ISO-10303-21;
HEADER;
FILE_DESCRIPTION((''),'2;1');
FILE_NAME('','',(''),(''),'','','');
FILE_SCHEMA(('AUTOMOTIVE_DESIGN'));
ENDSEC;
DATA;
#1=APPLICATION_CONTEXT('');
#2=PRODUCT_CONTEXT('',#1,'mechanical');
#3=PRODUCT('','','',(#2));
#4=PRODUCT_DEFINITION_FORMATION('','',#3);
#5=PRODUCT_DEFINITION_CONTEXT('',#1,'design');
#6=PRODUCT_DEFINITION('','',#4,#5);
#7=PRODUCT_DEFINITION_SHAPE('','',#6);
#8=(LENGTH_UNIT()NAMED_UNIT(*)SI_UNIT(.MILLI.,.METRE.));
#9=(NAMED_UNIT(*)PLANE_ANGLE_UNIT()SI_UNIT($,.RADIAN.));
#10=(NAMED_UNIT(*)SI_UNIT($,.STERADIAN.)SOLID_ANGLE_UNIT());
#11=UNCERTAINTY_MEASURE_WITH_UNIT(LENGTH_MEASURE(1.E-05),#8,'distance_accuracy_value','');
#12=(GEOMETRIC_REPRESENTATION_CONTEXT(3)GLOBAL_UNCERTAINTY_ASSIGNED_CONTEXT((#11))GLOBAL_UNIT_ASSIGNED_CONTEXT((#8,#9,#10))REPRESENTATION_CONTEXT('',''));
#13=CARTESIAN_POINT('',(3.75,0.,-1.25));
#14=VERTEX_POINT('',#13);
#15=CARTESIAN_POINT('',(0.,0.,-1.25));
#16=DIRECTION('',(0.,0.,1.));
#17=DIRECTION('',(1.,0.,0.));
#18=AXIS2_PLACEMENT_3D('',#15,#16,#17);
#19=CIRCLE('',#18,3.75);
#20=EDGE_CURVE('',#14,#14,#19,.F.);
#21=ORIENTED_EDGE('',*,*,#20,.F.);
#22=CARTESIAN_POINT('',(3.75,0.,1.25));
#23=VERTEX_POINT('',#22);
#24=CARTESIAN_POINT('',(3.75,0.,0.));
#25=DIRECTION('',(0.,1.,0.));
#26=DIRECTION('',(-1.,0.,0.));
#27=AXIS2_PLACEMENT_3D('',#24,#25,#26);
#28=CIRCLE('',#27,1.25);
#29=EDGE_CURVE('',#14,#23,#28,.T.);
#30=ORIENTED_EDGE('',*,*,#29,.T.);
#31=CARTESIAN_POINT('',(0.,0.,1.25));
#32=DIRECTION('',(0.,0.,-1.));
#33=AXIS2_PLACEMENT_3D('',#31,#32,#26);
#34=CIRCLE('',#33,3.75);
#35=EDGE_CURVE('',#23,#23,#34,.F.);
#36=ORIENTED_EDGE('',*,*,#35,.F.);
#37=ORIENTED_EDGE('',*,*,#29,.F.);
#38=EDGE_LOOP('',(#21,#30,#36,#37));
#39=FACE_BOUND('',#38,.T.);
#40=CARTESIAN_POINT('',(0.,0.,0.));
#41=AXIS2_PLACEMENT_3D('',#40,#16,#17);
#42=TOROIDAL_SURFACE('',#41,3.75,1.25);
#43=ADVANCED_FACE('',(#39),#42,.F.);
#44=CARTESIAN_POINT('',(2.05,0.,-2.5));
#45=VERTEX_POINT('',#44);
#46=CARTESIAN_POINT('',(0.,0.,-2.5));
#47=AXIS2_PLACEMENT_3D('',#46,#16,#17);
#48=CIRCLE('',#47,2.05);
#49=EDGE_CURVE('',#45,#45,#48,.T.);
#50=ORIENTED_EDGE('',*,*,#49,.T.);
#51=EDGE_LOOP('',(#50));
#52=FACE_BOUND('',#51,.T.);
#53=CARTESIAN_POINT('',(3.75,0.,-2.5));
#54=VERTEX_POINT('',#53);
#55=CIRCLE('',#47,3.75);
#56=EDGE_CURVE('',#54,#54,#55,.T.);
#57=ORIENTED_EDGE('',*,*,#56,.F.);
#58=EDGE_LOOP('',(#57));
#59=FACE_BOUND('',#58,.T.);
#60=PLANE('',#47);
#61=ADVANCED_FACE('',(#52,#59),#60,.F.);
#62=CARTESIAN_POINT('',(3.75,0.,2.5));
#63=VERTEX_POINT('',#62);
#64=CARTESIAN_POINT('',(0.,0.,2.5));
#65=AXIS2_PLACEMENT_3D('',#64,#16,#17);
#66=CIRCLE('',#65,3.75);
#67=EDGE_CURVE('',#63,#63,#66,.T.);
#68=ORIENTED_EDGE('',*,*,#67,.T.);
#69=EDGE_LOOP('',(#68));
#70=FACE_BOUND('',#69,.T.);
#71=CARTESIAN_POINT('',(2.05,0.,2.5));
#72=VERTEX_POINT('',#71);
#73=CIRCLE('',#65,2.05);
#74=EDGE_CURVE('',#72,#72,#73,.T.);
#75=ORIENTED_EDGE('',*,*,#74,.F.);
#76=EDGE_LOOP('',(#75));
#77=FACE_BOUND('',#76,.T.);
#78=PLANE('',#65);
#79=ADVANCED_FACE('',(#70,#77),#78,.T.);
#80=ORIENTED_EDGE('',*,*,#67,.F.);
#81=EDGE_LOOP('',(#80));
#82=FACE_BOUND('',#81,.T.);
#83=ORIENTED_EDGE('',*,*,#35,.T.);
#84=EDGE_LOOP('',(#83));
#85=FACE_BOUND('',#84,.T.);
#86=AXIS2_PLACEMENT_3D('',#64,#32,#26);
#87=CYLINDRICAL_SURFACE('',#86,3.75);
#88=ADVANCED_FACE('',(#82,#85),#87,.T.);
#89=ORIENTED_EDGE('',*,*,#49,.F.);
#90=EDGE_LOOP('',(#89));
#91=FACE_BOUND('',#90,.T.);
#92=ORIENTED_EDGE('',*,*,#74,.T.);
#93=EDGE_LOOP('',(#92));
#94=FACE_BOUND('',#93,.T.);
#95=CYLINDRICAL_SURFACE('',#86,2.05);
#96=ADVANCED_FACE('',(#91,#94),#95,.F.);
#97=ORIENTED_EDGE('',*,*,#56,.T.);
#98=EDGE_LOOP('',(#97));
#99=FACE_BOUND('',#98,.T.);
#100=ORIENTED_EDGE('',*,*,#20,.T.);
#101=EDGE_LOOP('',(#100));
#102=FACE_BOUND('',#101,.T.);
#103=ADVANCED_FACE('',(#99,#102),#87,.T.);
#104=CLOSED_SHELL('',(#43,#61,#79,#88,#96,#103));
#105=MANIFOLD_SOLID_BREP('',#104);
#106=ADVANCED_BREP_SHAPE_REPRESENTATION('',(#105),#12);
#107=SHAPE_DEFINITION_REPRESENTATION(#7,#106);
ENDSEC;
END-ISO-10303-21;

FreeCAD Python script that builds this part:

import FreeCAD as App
import Part
import Sketcher

V = App.Vector

doc = App.newDocument("Part")
body = doc.addObject("PartDesign::Body", "Body")

sketch1 = body.newObject("Sketcher::SketchObject", "Sketch")
sketch1.AttachmentSupport = (doc.getObject("XY_Plane"), [""])
sketch1.MapMode = "FlatFace"
sketch1.addGeometry(Part.Circle(V(0, 0, 0), V(0, 0, 1), 3.8), False)
sketch1.addGeometry(Part.Circle(V(0, 0, 0), V(0, 0, 1), 2), False)
sketch1.addConstraint(Sketcher.Constraint("Coincident", 0, 3, -1, 1))
sketch1.addConstraint(Sketcher.Constraint("Coincident", 1, 3, -1, 1))
sketch1.addConstraint(Sketcher.Constraint("Diameter", 0, 7.5))
sketch1.addConstraint(Sketcher.Constraint("Diameter", 1, 4.1))
pad1 = body.newObject("PartDesign::Pad", "Pad")
pad1.Profile = sketch1
pad1.Length = 5
pad1.Midplane = True

sketch2 = body.newObject("Sketcher::SketchObject", "Sketch001")
sketch2.AttachmentSupport = (doc.getObject("XZ_Plane"), [""])
sketch2.MapMode = "FlatFace"
sketch2.addGeometry(Part.Circle(V(3.8, 0, 0), V(0, 0, 1), 1.2), False)
sketch2.addConstraint(Sketcher.Constraint("PointOnObject", 0, 3, -1))
sketch2.addConstraint(Sketcher.Constraint("Diameter", 0, 2.5))
sketch2.addConstraint(Sketcher.Constraint("DistanceX", -1, 1, 0, 3, 3.75))

sketch3 = body.newObject("Sketcher::SketchObject", "Sketch002")
sketch3.AttachmentSupport = (doc.getObject("XY_Plane"), [""])
sketch3.MapMode = "FlatFace"
sketch3.addGeometry(Part.Circle(V(0, 0, 0), V(0, 0, 1), 3.8), False)
sketch3.addConstraint(Sketcher.Constraint("Coincident", 0, 3, -1, 1))
sketch3.addConstraint(Sketcher.Constraint("Diameter", 0, 7.5))
doc.recompute()

subtractivepipe = body.newObject("PartDesign::SubtractivePipe", "SubtractivePipe")
subtractivepipe.Profile = sketch2
subtractivepipe.Spine = (sketch3, ["Edge1"])

doc.recompute()
